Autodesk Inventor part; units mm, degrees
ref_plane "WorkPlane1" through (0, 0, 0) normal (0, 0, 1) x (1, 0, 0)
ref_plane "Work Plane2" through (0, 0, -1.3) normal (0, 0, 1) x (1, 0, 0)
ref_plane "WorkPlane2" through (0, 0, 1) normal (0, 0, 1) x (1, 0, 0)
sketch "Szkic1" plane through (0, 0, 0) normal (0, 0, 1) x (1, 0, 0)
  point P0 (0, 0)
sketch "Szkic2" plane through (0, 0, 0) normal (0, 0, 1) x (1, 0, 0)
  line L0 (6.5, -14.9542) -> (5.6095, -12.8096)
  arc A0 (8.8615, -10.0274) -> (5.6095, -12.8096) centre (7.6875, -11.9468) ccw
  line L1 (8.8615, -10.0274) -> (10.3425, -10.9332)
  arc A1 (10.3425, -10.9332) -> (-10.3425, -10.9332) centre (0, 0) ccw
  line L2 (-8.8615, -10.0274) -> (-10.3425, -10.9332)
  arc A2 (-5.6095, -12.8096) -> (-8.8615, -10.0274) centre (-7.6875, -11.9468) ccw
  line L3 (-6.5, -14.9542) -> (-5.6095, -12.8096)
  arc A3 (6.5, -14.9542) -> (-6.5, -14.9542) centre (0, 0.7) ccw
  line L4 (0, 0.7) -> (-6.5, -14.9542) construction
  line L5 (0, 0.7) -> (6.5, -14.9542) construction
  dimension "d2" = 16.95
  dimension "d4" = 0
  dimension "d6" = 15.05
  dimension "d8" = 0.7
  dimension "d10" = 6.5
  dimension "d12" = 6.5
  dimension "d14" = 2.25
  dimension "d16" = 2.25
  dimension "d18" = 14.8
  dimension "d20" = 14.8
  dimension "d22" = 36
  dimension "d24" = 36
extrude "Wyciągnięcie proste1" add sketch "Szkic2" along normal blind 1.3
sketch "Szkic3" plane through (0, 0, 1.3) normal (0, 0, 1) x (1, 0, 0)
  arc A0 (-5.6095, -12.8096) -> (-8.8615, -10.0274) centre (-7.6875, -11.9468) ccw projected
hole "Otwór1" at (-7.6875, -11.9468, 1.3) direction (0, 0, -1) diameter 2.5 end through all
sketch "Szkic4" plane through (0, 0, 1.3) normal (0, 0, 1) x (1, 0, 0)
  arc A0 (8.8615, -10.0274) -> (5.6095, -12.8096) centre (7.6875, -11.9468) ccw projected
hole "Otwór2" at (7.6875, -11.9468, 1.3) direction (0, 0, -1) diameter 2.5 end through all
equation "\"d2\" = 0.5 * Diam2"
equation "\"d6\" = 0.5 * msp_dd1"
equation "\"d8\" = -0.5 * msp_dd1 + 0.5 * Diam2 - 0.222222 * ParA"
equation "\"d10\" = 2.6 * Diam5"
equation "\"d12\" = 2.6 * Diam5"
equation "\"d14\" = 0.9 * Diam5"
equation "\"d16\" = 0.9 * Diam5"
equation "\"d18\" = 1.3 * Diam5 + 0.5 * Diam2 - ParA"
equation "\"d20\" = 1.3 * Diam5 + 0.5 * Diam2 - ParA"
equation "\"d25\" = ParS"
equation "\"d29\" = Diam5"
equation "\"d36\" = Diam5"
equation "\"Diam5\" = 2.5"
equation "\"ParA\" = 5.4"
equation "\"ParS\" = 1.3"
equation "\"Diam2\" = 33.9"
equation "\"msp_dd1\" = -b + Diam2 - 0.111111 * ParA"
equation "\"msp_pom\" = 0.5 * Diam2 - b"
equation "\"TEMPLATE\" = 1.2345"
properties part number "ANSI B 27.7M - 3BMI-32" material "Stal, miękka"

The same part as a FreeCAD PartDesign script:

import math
import FreeCAD as App
import Part
import Sketcher
from FreeCAD import Vector
Q = App.Units.Quantity

doc = App.newDocument("Part")
params = doc.addObject("Spreadsheet::Sheet", "Params")
for row, (alias, value) in enumerate([
    ("sketch1_radius", "16.95 mm"),
    ("sketch1_radius2", "2.25 mm"),
    ("sketch1_radius3", "15.05 mm"),
    ("pad1_length", "1.3 mm"),
    ("sketch2_diameter", "2.5 mm"),
    ("hole_diameter", "2.5 mm"),
    ("sketch3_diameter", "2.5 mm"),
    ("hole2_diameter", "2.5 mm"),
], start=1):
    params.set(f"A{row}", alias)
    params.set(f"B{row}", "=" + value)
    params.setAlias(f"B{row}", alias)

body = doc.addObject("PartDesign::Body", "Body")

sketch1 = doc.addObject("Sketcher::SketchObject", "Sketch")
body.addObject(sketch1)
sketch1.AttachmentSupport = (doc.XY_Plane, [""])
sketch1.MapMode = "FlatFace"
sketch1.addGeometry(Part.LineSegment(Vector(5.6, -12.8, 0), Vector(6.5, -15, 0)), False)
sketch1.addGeometry(Part.ArcOfCircle(Part.Circle(Vector(0, 0.7, 0), Vector(0, 0, 1), 17), math.radians(-67), math.radians(247)), False)
sketch1.addGeometry(Part.LineSegment(Vector(-6.5, -15, 0), Vector(-5.6, -12.8, 0)), False)
sketch1.addGeometry(Part.ArcOfCircle(Part.Circle(Vector(-7.7, -11.9, 0), Vector(0, 0, 1), 2.3), math.radians(-23), math.radians(121)), False)
sketch1.addGeometry(Part.LineSegment(Vector(-8.9, -10, 0), Vector(-10.3, -10.9, 0)), False)
sketch1.addGeometry(Part.ArcOfCircle(Part.Circle(Vector(0, 0, 0), Vector(0, 0, 1), 15), math.radians(-47), math.radians(227)), False)
sketch1.addGeometry(Part.LineSegment(Vector(10.3, -10.9, 0), Vector(8.9, -10, 0)), False)
sketch1.addGeometry(Part.ArcOfCircle(Part.Circle(Vector(7.7, -11.9, 0), Vector(0, 0, 1), 2.2), math.radians(59), math.radians(203)), False)
sketch1.addConstraint(Sketcher.Constraint("Coincident", 0, 2, 1, 1))
sketch1.addConstraint(Sketcher.Constraint("Coincident", 1, 2, 2, 1))
sketch1.addConstraint(Sketcher.Constraint("Tangent", 2, 2, 3, 1))
sketch1.addConstraint(Sketcher.Constraint("Tangent", 3, 2, 4, 1))
sketch1.addConstraint(Sketcher.Constraint("Coincident", 4, 2, 5, 2))
sketch1.addConstraint(Sketcher.Constraint("Coincident", 5, 1, 6, 1))
sketch1.addConstraint(Sketcher.Constraint("Tangent", 6, 2, 7, 1))
sketch1.addConstraint(Sketcher.Constraint("Tangent", 7, 2, 0, 1))
sketch1.addConstraint(Sketcher.Constraint("Coincident", 5, 3, -1, 1))
sketch1.addConstraint(Sketcher.Constraint("Equal", 3, 7))
sketch1.addConstraint(Sketcher.Constraint("Symmetric", 3, 3, 7, 3, -2))
sketch1.addConstraint(Sketcher.Constraint("Symmetric", 0, 2, 1, 2, -2))
sketch1.addConstraint(Sketcher.Constraint("Horizontal", 4, 2, 5, 1))
sketch1.addConstraint(Sketcher.Constraint("Radius", 1, Q("16.95 mm")))
sketch1.addConstraint(Sketcher.Constraint("Radius", 3, Q("2.25 mm")))
sketch1.addConstraint(Sketcher.Constraint("Radius", 5, Q("15.05 mm")))
sketch1.addConstraint(Sketcher.Constraint("DistanceY", -1, 1, 1, 3, Q("0.7 mm")))
sketch1.addConstraint(Sketcher.Constraint("DistanceX", -1, 1, 0, 2, Q("6.5 mm")))
sketch1.addConstraint(Sketcher.Constraint("Angle", 0, Q("-67.4504 deg")))
sketch1.addConstraint(Sketcher.Constraint("Angle", 4, Q("-148.5495 deg")))
sketch1.addConstraint(Sketcher.Constraint("Distance", 4, Q("1.736 mm")))
sketch1.setExpression("Constraints[13]", "Params.sketch1_radius")
sketch1.setExpression("Constraints[14]", "Params.sketch1_radius2")
sketch1.setExpression("Constraints[15]", "Params.sketch1_radius3")
pad1 = doc.addObject("PartDesign::Pad", "Pad")
body.addObject(pad1)
pad1.Profile = sketch1
pad1.setExpression("Length", "Params.pad1_length")

sketch2 = doc.addObject("Sketcher::SketchObject", "Sketch001")
body.addObject(sketch2)
sketch2.AttachmentSupport = (doc.XY_Plane, [""])
sketch2.MapMode = "FlatFace"
sketch2.AttachmentOffset = App.Placement(Vector(0, 0, 1.3), App.Rotation())
sketch2.addGeometry(Part.Circle(Vector(-7.7, -11.9, 0), Vector(0, 0, 1), 1.2), False)
sketch2.addConstraint(Sketcher.Constraint("Diameter", 0, Q("2.5 mm")))
sketch2.addConstraint(Sketcher.Constraint("DistanceX", 0, 3, -1, 1, Q("7.6875 mm")))
sketch2.addConstraint(Sketcher.Constraint("DistanceY", 0, 3, -1, 1, Q("11.9468 mm")))
sketch2.setExpression("Constraints[0]", "Params.sketch2_diameter")
doc.recompute()
hole = doc.addObject("PartDesign::Hole", "Hole")
body.addObject(hole)
hole.Profile = sketch2
hole.ThreadType = "None"
hole.setExpression("Diameter", "Params.hole_diameter")
hole.DepthType = "ThroughAll"

sketch3 = doc.addObject("Sketcher::SketchObject", "Sketch002")
body.addObject(sketch3)
sketch3.AttachmentSupport = (doc.XY_Plane, [""])
sketch3.MapMode = "FlatFace"
sketch3.AttachmentOffset = App.Placement(Vector(0, 0, 1.3), App.Rotation())
sketch3.addGeometry(Part.Circle(Vector(7.7, -11.9, 0), Vector(0, 0, 1), 1.2), False)
sketch3.addConstraint(Sketcher.Constraint("Diameter", 0, Q("2.5 mm")))
sketch3.addConstraint(Sketcher.Constraint("DistanceX", -1, 1, 0, 3, Q("7.6875 mm")))
sketch3.addConstraint(Sketcher.Constraint("DistanceY", 0, 3, -1, 1, Q("11.9468 mm")))
sketch3.setExpression("Constraints[0]", "Params.sketch3_diameter")
doc.recompute()
hole2 = doc.addObject("PartDesign::Hole", "Hole001")
body.addObject(hole2)
hole2.Profile = sketch3
hole2.ThreadType = "None"
hole2.setExpression("Diameter", "Params.hole2_diameter")
hole2.DepthType = "ThroughAll"

doc.recompute()
